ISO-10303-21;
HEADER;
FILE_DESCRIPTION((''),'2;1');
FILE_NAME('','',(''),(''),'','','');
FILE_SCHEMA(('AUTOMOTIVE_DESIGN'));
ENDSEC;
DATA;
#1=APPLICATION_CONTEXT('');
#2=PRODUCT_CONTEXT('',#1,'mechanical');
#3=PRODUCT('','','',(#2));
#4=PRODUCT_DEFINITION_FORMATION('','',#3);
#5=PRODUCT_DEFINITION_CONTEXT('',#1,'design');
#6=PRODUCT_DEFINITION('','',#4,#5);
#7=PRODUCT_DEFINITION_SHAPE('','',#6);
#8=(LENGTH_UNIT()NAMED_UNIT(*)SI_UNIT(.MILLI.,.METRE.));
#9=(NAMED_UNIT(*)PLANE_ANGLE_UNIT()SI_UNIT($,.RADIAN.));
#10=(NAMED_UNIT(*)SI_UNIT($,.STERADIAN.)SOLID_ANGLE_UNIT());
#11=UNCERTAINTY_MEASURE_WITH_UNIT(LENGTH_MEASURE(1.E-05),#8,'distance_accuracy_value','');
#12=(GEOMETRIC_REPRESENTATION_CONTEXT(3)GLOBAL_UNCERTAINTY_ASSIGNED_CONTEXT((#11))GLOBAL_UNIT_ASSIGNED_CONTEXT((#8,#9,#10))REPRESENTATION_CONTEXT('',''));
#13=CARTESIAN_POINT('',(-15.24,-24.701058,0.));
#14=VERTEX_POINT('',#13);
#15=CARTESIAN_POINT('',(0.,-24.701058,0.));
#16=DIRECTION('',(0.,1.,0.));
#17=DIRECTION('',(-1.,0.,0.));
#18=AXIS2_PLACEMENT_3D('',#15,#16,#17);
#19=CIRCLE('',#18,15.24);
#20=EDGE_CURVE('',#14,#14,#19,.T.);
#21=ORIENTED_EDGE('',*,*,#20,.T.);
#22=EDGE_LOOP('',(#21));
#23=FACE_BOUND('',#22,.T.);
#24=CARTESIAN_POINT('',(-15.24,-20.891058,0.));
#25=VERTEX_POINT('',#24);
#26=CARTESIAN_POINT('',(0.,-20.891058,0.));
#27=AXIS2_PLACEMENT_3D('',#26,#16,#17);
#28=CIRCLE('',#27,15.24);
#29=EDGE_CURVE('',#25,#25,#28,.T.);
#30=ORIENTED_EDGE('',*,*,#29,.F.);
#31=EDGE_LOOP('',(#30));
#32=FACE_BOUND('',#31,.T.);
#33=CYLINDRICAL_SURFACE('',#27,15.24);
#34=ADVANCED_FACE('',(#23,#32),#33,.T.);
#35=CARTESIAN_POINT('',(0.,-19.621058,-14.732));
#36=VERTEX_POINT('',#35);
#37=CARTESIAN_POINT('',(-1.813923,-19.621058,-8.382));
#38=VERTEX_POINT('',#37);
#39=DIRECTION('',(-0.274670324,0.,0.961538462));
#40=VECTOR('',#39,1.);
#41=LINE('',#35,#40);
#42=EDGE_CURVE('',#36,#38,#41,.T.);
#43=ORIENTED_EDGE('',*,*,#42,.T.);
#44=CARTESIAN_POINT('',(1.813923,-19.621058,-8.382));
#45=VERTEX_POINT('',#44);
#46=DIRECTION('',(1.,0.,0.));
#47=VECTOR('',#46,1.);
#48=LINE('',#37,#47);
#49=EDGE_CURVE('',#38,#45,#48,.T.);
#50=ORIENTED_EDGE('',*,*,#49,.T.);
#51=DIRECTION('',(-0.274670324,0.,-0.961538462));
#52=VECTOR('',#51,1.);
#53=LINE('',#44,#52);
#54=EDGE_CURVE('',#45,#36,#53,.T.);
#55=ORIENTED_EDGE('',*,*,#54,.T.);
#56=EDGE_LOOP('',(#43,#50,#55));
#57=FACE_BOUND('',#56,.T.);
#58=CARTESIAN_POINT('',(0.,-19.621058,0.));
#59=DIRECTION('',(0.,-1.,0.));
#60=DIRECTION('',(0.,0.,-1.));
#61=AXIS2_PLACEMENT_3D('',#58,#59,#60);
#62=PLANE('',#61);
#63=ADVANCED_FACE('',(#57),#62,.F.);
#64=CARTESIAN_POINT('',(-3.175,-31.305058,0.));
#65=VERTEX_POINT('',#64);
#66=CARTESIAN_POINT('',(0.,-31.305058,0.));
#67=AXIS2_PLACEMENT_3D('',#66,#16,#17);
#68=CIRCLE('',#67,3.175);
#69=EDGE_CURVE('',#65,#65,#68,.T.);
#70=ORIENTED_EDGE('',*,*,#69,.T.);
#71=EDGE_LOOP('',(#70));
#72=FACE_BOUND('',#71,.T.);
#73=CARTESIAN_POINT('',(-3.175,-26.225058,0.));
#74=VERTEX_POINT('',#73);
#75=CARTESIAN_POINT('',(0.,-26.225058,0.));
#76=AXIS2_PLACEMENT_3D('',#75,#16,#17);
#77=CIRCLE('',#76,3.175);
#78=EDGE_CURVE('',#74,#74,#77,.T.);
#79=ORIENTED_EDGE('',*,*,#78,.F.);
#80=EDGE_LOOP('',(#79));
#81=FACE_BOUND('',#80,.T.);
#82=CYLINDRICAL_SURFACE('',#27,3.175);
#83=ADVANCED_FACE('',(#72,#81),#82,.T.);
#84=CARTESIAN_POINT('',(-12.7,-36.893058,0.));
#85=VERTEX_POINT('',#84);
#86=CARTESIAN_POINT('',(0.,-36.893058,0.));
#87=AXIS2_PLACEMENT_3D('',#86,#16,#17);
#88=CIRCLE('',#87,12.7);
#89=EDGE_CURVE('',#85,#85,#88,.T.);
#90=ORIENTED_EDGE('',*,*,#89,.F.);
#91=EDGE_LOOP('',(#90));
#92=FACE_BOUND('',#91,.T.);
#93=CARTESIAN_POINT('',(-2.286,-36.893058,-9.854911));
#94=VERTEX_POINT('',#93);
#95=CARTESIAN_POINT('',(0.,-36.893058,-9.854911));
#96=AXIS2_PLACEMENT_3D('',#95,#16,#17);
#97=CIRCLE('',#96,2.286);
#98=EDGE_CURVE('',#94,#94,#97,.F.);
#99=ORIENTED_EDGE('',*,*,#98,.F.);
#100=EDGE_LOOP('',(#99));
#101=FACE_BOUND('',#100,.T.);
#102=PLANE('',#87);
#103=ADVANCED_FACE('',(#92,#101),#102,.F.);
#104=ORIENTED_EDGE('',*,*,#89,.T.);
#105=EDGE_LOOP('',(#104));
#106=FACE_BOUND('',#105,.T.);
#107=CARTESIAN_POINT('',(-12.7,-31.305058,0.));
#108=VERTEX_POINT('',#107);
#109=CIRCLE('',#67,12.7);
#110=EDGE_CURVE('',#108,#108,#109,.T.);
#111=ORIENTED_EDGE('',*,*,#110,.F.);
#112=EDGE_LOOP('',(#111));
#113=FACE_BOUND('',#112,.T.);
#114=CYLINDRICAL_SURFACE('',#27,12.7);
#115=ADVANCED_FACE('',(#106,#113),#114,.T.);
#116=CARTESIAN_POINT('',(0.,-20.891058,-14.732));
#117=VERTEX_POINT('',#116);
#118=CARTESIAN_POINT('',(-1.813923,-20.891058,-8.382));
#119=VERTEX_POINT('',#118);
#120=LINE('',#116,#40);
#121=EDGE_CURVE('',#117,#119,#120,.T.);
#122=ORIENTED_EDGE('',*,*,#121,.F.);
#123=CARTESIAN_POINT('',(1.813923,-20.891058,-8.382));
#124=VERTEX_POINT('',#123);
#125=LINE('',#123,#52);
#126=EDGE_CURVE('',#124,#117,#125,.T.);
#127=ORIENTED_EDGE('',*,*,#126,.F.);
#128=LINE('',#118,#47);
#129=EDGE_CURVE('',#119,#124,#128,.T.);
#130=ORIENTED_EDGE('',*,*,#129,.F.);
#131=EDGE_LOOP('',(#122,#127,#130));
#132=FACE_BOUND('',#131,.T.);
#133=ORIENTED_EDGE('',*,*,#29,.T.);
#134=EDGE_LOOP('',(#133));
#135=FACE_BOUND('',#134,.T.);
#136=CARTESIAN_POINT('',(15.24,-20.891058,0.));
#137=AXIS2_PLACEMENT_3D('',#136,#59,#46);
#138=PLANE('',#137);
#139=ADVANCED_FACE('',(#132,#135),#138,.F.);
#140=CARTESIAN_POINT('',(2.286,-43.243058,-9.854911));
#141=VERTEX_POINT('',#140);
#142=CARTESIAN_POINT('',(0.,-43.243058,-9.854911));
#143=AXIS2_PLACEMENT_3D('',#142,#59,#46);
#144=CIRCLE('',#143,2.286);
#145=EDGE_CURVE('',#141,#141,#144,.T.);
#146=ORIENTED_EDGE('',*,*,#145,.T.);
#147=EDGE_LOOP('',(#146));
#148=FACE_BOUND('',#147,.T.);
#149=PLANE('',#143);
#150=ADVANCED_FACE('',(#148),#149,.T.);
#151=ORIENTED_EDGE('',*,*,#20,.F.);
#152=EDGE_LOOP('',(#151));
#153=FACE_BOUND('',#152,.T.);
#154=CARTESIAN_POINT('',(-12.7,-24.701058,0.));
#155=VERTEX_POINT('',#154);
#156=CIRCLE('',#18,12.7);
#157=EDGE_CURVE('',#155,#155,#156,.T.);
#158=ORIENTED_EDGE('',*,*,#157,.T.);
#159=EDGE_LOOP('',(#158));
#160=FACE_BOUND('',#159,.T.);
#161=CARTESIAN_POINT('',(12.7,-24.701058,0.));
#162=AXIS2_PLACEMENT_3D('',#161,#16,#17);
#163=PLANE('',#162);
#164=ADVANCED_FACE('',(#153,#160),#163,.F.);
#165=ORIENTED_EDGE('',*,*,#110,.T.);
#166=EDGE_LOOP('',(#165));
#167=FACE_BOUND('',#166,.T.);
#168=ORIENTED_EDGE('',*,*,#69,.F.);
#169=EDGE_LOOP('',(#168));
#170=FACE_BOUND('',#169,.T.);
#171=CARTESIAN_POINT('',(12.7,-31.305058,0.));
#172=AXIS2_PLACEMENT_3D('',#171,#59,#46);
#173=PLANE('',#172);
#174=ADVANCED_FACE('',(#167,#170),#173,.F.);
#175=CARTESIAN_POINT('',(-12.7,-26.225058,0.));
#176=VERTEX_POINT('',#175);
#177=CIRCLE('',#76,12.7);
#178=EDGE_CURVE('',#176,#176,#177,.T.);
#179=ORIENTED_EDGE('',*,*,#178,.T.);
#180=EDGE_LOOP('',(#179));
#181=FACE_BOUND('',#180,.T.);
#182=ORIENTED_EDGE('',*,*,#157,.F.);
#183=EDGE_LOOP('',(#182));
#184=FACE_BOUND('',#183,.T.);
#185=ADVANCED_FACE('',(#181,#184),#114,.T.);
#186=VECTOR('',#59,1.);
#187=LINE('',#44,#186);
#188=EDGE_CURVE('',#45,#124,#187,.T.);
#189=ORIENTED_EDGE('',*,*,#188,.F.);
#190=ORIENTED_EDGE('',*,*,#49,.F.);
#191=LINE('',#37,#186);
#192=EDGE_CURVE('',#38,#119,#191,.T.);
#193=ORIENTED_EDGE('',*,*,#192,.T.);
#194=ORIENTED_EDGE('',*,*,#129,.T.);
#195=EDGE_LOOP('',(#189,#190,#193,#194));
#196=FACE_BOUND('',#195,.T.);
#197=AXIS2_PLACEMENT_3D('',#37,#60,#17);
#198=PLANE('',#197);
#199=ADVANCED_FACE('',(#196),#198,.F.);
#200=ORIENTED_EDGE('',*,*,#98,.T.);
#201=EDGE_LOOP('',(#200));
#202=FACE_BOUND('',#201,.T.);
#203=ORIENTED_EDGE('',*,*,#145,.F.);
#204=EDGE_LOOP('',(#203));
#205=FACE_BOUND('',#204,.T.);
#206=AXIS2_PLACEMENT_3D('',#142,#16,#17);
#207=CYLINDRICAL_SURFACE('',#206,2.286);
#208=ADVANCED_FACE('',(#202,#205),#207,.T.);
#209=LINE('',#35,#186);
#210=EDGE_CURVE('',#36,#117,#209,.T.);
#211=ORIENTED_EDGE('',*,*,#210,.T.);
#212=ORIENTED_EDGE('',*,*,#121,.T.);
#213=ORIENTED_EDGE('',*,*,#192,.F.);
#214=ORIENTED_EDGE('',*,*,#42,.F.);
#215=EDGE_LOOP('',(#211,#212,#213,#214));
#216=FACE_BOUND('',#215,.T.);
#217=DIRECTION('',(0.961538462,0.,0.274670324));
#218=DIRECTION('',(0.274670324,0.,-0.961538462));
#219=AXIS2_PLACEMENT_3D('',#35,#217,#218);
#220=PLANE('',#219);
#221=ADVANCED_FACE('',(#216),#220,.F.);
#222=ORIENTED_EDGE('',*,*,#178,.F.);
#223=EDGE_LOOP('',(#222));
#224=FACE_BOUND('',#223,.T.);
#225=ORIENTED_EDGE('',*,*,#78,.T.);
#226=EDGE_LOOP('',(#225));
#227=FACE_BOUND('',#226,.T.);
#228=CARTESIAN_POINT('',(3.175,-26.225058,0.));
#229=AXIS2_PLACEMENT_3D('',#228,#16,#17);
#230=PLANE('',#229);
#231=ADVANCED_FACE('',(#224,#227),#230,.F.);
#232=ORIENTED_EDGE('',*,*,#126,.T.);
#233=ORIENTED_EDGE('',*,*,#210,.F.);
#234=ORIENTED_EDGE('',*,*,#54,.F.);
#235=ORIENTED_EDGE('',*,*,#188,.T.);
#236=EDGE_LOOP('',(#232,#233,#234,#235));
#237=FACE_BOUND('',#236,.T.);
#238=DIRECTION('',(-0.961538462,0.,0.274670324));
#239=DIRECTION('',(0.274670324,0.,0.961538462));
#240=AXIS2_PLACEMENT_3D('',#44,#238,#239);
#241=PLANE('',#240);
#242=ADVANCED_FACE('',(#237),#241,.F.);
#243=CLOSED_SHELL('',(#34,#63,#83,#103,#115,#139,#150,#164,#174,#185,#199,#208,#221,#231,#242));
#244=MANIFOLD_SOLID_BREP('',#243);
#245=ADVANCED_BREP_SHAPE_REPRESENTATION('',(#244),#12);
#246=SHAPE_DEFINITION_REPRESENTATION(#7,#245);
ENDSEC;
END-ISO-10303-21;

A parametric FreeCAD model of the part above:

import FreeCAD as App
import Part
import Sketcher
Q = App.Units.Quantity

doc = App.newDocument("Part")
body = doc.addObject("PartDesign::Body", "Body")

# Sketch on XY plane
sketch1 = doc.addObject("Sketcher::SketchObject", "Sketch")
body.addObject(sketch1)
sketch1.AttachmentSupport = (doc.XY_Plane, [""])
sketch1.MapMode = "FlatFace"
sketch1.addGeometry([
    Part.LineSegment(App.Vector(0, -20.9, 0), App.Vector(0, -36.9, 0)),  # 0
    Part.LineSegment(App.Vector(0, -36.9, 0), App.Vector(12.7, -36.9, 0)),  # 1
    Part.LineSegment(App.Vector(12.7, -36.9, 0), App.Vector(12.7, -31.3, 0)),  # 2
    Part.LineSegment(App.Vector(12.7, -31.3, 0), App.Vector(3.2, -31.3, 0)),  # 3
    Part.LineSegment(App.Vector(3.2, -31.3, 0), App.Vector(3.2, -26.2, 0)),  # 4
    Part.LineSegment(App.Vector(3.2, -26.2, 0), App.Vector(12.7, -26.2, 0)),  # 5
    Part.LineSegment(App.Vector(12.7, -26.2, 0), App.Vector(12.7, -24.7, 0)),  # 6
    Part.LineSegment(App.Vector(12.7, -24.7, 0), App.Vector(15.2, -24.7, 0)),  # 7
    Part.LineSegment(App.Vector(15.2, -24.7, 0), App.Vector(15.2, -20.9, 0)),  # 8
    Part.LineSegment(App.Vector(15.2, -20.9, 0), App.Vector(0, -20.9, 0)),  # 9
], False)
sketch1.addConstraint([
    Sketcher.Constraint("Coincident", 0, 2, 1, 1),
    Sketcher.Constraint("Coincident", 1, 2, 2, 1),
    Sketcher.Constraint("Coincident", 2, 2, 3, 1),
    Sketcher.Constraint("Coincident", 3, 2, 4, 1),
    Sketcher.Constraint("Coincident", 4, 2, 5, 1),
    Sketcher.Constraint("Coincident", 5, 2, 6, 1),
    Sketcher.Constraint("Coincident", 6, 2, 7, 1),
    Sketcher.Constraint("Coincident", 7, 2, 8, 1),
    Sketcher.Constraint("Coincident", 8, 2, 9, 1),
    Sketcher.Constraint("Coincident", 9, 2, 0, 1),
    Sketcher.Constraint("Vertical", 0),
    Sketcher.Constraint("Horizontal", 1),
    Sketcher.Constraint("Vertical", 2),
    Sketcher.Constraint("Horizontal", 3),
    Sketcher.Constraint("Vertical", 4),
    Sketcher.Constraint("Horizontal", 5),
    Sketcher.Constraint("Vertical", 6),
    Sketcher.Constraint("Horizontal", 7),
    Sketcher.Constraint("Vertical", 8),
    Sketcher.Constraint("Horizontal", 9),
    Sketcher.Constraint("PointOnObject", 0, 2, -2),
    Sketcher.Constraint("Vertical", 2, 2, 5, 2),
    Sketcher.Constraint("DistanceX", 1, 1, 1, 2, Q("0.5 in")),
    Sketcher.Constraint("DistanceX", 7, 1, 7, 2, Q("0.1 in")),
    Sketcher.Constraint("DistanceY", 4, 1, 4, 2, Q("0.2 in")),
    Sketcher.Constraint("DistanceY", 0, 2, 0, 1, Q("0.63 in")),
    Sketcher.Constraint("DistanceY", 2, 1, 2, 2, Q("0.22 in")),
    Sketcher.Constraint("DistanceY", 6, 1, 6, 2, Q("0.06 in")),
    Sketcher.Constraint("DistanceX", 3, 2, 3, 1, Q("0.375 in")),
    Sketcher.Constraint("DistanceY", 0, 2, -1, 1, 36.893058),
])
revolution = doc.addObject("PartDesign::Revolution", "Revolution")
body.addObject(revolution)
revolution.Profile = sketch1
revolution.ReferenceAxis = (sketch1, ["V_Axis"])
revolution.Angle = 360

# Sketch on XZ plane
sketch2 = doc.addObject("Sketcher::SketchObject", "Sketch001")
body.addObject(sketch2)
sketch2.AttachmentSupport = (doc.XZ_Plane, [""])
sketch2.MapMode = "FlatFace"
sketch2.AttachmentOffset = App.Placement(App.Vector(0, 0, 20.891058), App.Rotation())
sketch2.addGeometry([
    Part.LineSegment(App.Vector(0, -14.7, 0), App.Vector(-1.8, -8.4, 0)),
    Part.LineSegment(App.Vector(-1.8, -8.4, 0), App.Vector(1.8, -8.4, 0)),
    Part.LineSegment(App.Vector(1.8, -8.4, 0), App.Vector(0, -14.7, 0)),
], False)
sketch2.addConstraint([
    Sketcher.Constraint("Coincident", 0, 2, 1, 1),
    Sketcher.Constraint("Coincident", 1, 2, 2, 1),
    Sketcher.Constraint("Coincident", 2, 2, 0, 1),
    Sketcher.Constraint("Horizontal", 1),
    Sketcher.Constraint("PointOnObject", 2, 2, -2),
    Sketcher.Constraint("Equal", 0, 2),
    Sketcher.Constraint("Distance", 0, Q("0.26 in")),
    Sketcher.Constraint("DistanceY", 0, 2, -1, 1, Q("0.33 in")),
    Sketcher.Constraint("DistanceY", 2, 2, -1, 1, Q("0.58 in")),
])
pad1 = doc.addObject("PartDesign::Pad", "Pad")
body.addObject(pad1)
pad1.Profile = sketch2
pad1.Length = Q("0.05 in")
pad1.Reversed = True

# Sketch on XZ plane
sketch3 = doc.addObject("Sketcher::SketchObject", "Sketch002")
body.addObject(sketch3)
sketch3.AttachmentSupport = (doc.XZ_Plane, [""])
sketch3.MapMode = "FlatFace"
sketch3.AttachmentOffset = App.Placement(App.Vector(0, 0, 36.893058), App.Rotation())
sketch3.addGeometry(Part.Circle(App.Vector(0, -9.9, 0), App.Vector(0, 0, 1), 2.3), False)
sketch3.addConstraint([
    Sketcher.Constraint("PointOnObject", 0, 3, -2),
    Sketcher.Constraint("Diameter", 0, Q("0.18 in")),
    Sketcher.Constraint("DistanceY", 0, 3, -1, 1, 9.854911),
])
pad2 = doc.addObject("PartDesign::Pad", "Pad001")
body.addObject(pad2)
pad2.Profile = sketch3
pad2.Length = Q("0.25 in")

doc.recompute()
